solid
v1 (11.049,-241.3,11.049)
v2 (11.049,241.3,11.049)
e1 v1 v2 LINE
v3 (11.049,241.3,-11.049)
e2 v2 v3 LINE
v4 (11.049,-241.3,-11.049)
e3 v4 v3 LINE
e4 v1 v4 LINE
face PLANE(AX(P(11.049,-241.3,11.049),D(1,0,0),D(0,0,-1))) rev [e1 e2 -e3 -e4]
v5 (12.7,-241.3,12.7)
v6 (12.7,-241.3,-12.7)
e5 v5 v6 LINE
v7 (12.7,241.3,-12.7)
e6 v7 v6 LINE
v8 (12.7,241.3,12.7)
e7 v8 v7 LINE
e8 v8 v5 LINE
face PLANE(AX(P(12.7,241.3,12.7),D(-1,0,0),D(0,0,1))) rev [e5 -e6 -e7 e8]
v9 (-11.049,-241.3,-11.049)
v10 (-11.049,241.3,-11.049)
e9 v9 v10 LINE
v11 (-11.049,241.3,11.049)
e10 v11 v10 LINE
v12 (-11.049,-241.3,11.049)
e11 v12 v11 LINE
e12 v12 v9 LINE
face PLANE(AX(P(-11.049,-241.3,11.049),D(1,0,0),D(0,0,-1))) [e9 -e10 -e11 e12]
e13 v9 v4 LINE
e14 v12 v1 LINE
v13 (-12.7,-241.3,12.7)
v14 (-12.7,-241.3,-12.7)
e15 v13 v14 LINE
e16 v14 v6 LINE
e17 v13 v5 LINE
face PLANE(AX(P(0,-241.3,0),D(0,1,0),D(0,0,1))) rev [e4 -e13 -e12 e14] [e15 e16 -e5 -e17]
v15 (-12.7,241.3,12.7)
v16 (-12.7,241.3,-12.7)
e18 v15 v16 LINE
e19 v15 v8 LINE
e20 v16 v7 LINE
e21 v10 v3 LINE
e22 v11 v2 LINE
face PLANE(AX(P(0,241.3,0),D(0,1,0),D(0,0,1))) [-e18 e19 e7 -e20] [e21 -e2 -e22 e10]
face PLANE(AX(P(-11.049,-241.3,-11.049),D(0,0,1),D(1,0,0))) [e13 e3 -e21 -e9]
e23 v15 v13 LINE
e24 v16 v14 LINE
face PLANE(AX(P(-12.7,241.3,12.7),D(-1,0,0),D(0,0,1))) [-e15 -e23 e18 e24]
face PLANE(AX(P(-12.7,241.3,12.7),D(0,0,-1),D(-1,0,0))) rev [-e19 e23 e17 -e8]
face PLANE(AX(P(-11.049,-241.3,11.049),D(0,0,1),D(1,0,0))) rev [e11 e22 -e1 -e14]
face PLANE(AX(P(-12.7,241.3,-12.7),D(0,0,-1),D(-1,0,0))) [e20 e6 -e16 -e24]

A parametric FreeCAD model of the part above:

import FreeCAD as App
import Part
import Sketcher

V = App.Vector
Q = App.Units.Quantity

doc = App.newDocument("Part")
body = doc.addObject("PartDesign::Body", "Body")

# Sketch on XZ plane
sketch1 = body.newObject("Sketcher::SketchObject", "Sketch")
sketch1.AttachmentSupport = (doc.getObject("XZ_Plane"), [""])
sketch1.MapMode = "FlatFace"
sketch1.addGeometry([
    Part.LineSegment(V(-12.7, -12.7, 0), V(-12.7, 12.7, 0)),
    Part.LineSegment(V(-12.7, 12.7, 0), V(12.7, 12.7, 0)),
    Part.LineSegment(V(12.7, 12.7, 0), V(12.7, -12.7, 0)),
    Part.LineSegment(V(12.7, -12.7, 0), V(-12.7, -12.7, 0)),
], False)
sketch1.addConstraint([
    Sketcher.Constraint("Coincident", 0, 2, 1, 1),
    Sketcher.Constraint("Coincident", 1, 2, 2, 1),
    Sketcher.Constraint("Coincident", 2, 2, 3, 1),
    Sketcher.Constraint("Coincident", 3, 2, 0, 1),
    Sketcher.Constraint("Vertical", 0),
    Sketcher.Constraint("Horizontal", 1),
    Sketcher.Constraint("Vertical", 2),
    Sketcher.Constraint("Horizontal", 3),
    Sketcher.Constraint("Symmetric", 0, 2, 2, 2, -1, 1),
    Sketcher.Constraint("Equal", 3, 0),
    Sketcher.Constraint("DistanceX", 1, 1, 1, 2, Q("1 in")),
])
pad1 = body.newObject("PartDesign::Pad", "Pad")
pad1.Profile = sketch1
pad1.Length = Q("19 in")
pad1.Midplane = True

# Sketch on XZ plane
sketch2 = body.newObject("Sketcher::SketchObject", "Sketch001")
sketch2.AttachmentSupport = (doc.getObject("XZ_Plane"), [""])
sketch2.MapMode = "FlatFace"
sketch2.AttachmentOffset = App.Placement(V(0, 0, -9.5 * 25.4), App.Rotation())
sketch2.addGeometry([
    Part.LineSegment(V(-11.049, -11.049, 0), V(-11.049, 11.049, 0)),
    Part.LineSegment(V(-11.049, 11.049, 0), V(11.049, 11.049, 0)),
    Part.LineSegment(V(11.049, 11.049, 0), V(11.049, -11.049, 0)),
    Part.LineSegment(V(11.049, -11.049, 0), V(-11.049, -11.049, 0)),
], False)
sketch2.addConstraint([
    Sketcher.Constraint("Coincident", 0, 2, 1, 1),
    Sketcher.Constraint("Coincident", 1, 2, 2, 1),
    Sketcher.Constraint("Coincident", 2, 2, 3, 1),
    Sketcher.Constraint("Coincident", 3, 2, 0, 1),
    Sketcher.Constraint("Vertical", 0),
    Sketcher.Constraint("Horizontal", 1),
    Sketcher.Constraint("Vertical", 2),
    Sketcher.Constraint("Horizontal", 3),
    Sketcher.Constraint("Symmetric", 0, 2, 2, 2, -1, 1),
    Sketcher.Constraint("Equal", 3, 0),
    Sketcher.Constraint("DistanceX", 1, 1, 1, 2, Q("0.87 in")),
])
pocket1 = body.newObject("PartDesign::Pocket", "Pocket")
pocket1.Profile = sketch2
pocket1.Type = "ThroughAll"
pocket1.Reversed = True

doc.recompute()
